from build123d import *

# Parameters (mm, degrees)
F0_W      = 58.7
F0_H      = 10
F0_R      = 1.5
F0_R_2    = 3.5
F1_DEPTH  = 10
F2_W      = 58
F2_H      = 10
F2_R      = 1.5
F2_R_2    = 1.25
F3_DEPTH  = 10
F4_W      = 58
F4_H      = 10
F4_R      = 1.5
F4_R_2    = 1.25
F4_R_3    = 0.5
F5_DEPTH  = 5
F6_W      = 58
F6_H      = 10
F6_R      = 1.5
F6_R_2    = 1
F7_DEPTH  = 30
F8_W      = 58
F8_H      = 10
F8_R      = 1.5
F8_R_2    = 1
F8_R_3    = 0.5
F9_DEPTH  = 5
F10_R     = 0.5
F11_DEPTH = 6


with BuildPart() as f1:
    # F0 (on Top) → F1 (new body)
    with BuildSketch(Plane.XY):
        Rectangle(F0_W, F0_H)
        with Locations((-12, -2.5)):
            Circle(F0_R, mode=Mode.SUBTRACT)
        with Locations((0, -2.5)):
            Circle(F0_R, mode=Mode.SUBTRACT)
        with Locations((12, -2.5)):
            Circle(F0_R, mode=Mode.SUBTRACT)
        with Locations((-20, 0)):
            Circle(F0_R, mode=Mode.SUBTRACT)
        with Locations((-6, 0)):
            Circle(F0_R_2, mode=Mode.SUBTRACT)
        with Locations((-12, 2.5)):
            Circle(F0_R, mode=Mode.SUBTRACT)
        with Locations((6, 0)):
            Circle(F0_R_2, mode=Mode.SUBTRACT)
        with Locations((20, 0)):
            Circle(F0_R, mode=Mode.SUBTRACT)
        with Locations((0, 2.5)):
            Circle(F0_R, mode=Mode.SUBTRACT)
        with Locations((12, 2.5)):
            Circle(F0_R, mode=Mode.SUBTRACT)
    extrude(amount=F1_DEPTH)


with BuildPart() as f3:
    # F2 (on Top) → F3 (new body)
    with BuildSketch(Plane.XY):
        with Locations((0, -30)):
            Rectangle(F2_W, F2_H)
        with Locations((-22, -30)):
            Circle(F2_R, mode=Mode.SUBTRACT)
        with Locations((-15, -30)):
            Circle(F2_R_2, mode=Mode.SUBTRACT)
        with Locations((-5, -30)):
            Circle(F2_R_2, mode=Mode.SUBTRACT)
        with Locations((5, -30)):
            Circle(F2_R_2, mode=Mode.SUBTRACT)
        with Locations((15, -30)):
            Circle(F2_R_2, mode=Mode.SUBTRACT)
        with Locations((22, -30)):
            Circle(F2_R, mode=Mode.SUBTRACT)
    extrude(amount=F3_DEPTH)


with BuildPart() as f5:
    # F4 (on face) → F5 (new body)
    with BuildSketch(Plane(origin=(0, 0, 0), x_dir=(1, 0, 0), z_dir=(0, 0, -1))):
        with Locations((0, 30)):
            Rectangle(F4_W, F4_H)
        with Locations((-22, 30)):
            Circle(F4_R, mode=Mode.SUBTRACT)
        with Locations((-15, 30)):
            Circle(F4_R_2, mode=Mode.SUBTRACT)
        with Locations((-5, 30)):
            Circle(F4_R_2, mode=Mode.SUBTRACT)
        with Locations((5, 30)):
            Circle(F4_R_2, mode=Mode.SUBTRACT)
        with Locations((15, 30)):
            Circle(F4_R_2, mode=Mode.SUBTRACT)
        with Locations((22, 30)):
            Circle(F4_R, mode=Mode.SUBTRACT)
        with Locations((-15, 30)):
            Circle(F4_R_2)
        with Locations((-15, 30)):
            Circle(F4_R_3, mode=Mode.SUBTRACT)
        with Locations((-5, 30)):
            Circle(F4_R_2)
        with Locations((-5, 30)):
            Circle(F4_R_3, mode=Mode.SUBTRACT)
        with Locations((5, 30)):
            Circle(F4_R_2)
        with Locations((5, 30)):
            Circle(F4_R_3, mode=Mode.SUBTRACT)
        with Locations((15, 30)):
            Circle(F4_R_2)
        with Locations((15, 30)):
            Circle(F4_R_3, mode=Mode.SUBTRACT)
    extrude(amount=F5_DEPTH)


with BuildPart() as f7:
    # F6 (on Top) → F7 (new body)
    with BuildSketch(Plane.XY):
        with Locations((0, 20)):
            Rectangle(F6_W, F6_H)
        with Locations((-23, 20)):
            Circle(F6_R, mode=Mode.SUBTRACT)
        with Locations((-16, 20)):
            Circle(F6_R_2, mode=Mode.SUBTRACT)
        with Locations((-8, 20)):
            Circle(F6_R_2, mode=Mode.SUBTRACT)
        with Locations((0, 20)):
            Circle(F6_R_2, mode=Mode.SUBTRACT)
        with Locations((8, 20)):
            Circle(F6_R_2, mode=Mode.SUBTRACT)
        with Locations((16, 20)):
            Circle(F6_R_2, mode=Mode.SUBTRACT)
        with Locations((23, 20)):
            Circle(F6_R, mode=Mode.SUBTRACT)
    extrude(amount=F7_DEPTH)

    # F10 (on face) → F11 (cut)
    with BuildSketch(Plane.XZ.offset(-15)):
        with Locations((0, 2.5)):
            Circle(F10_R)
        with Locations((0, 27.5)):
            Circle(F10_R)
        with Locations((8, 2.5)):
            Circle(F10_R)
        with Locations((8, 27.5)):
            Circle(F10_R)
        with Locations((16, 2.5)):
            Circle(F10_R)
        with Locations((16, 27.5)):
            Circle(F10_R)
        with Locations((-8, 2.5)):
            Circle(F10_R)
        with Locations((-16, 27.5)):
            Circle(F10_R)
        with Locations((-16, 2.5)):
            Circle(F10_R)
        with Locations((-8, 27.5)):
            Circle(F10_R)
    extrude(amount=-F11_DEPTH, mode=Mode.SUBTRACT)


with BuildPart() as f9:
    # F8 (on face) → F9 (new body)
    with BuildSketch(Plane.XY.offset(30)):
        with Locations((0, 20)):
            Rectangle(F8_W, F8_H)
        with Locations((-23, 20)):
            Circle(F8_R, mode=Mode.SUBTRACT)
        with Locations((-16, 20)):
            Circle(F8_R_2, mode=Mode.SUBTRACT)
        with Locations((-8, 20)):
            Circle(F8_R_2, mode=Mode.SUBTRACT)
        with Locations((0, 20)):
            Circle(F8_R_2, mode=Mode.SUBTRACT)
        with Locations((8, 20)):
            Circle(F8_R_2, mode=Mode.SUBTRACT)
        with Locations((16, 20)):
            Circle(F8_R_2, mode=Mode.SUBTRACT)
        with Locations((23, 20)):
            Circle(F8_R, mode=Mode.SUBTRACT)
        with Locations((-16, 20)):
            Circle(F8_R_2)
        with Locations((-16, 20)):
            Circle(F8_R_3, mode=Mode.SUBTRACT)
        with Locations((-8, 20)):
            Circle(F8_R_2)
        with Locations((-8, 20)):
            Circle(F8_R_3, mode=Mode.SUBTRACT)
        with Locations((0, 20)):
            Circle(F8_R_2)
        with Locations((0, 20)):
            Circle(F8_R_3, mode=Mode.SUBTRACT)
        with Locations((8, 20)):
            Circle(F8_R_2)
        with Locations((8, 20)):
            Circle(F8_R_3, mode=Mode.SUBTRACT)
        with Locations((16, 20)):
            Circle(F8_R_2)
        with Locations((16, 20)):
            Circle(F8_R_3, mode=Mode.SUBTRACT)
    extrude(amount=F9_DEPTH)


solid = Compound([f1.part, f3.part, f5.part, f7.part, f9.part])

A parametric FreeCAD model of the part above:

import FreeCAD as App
import Part
import Sketcher


def add_polygon(sketch, points):
    """Adds a closed chain of lines whose ends are joined by coincident constraints."""
    first, n = sketch.GeometryCount, len(points)
    for a, b in zip(points, points[1:] + points[:1]):
        sketch.addGeometry(Part.LineSegment(App.Vector(*a, 0), App.Vector(*b, 0)), False)
    for i in range(n):
        sketch.addConstraint(Sketcher.Constraint("Coincident", first + i, 2, first + (i + 1) % n, 1))

doc = App.newDocument("Part")
params = doc.addObject("Spreadsheet::Sheet", "Params")
for row, (alias, value) in enumerate([
    ("sketch1_diameter", "3 mm"),
    ("sketch1_diameter2", "7 mm"),
    ("sketch1_height", "10 mm"),
    ("sketch1_width", "58.7 mm"),
    ("pad1_length", "10 mm"),
    ("sketch2_diameter", "3 mm"),
    ("sketch2_diameter2", "2.5 mm"),
    ("sketch2_width", "58 mm"),
    ("sketch2_height", "10 mm"),
    ("pad2_length", "10 mm"),
    ("sketch3_diameter", "3 mm"),
    ("sketch3_diameter2", "1 mm"),
    ("sketch3_width", "58 mm"),
    ("sketch3_height", "10 mm"),
    ("pad3_length", "5 mm"),
    ("sketch4_diameter", "3 mm"),
    ("sketch4_diameter2", "2 mm"),
    ("sketch4_width", "58 mm"),
    ("sketch4_height", "10 mm"),
    ("pad4_length", "30 mm"),
    ("sketch5_diameter", "1 mm"),
    ("pocket1_length", "6 mm"),
    ("sketch6_diameter", "3 mm"),
    ("sketch6_diameter2", "1 mm"),
    ("sketch6_width", "58 mm"),
    ("sketch6_height", "10 mm"),
    ("pad5_length", "5 mm"),
], start=1):
    params.set(f"A{row}", alias)
    params.set(f"B{row}", "=" + value)
    params.setAlias(f"B{row}", alias)

body = doc.addObject("PartDesign::Body", "Body")

# Sketch on XY plane
sketch1 = doc.addObject("Sketcher::SketchObject", "Sketch")
body.addObject(sketch1)
sketch1.AttachmentSupport = (doc.XY_Plane, [""])
sketch1.MapMode = "FlatFace"
add_polygon(sketch1, [(-29.4, 5), (-29.4, -5), (29.4, -5), (29.4, 5)])  # lines 0-3
sketch1.addGeometry(Part.Circle(App.Vector(-12, -2.5, 0), App.Vector(0, 0, 1), 1.5), False)  # 4
sketch1.addGeometry(Part.Circle(App.Vector(0, -2.5, 0), App.Vector(0, 0, 1), 1.5), False)  # 5
sketch1.addGeometry(Part.Circle(App.Vector(12, -2.5, 0), App.Vector(0, 0, 1), 1.5), False)  # 6
sketch1.addGeometry(Part.Circle(App.Vector(-20, 0, 0), App.Vector(0, 0, 1), 1.5), False)  # 7
sketch1.addGeometry(Part.Circle(App.Vector(-6, 0, 0), App.Vector(0, 0, 1), 3.5), False)  # 8
sketch1.addGeometry(Part.Circle(App.Vector(-12, 2.5, 0), App.Vector(0, 0, 1), 1.5), False)  # 9
sketch1.addGeometry(Part.Circle(App.Vector(6, 0, 0), App.Vector(0, 0, 1), 3.5), False)  # 10
sketch1.addGeometry(Part.Circle(App.Vector(20, 0, 0), App.Vector(0, 0, 1), 1.5), False)  # 11
sketch1.addGeometry(Part.Circle(App.Vector(0, 2.5, 0), App.Vector(0, 0, 1), 1.5), False)  # 12
sketch1.addGeometry(Part.Circle(App.Vector(12, 2.5, 0), App.Vector(0, 0, 1), 1.5), False)  # 13
sketch1.addConstraint(Sketcher.Constraint("Vertical", 0))
sketch1.addConstraint(Sketcher.Constraint("Horizontal", 1))
sketch1.addConstraint(Sketcher.Constraint("Vertical", 2))
sketch1.addConstraint(Sketcher.Constraint("Horizontal", 3))
sketch1.addConstraint(Sketcher.Constraint("Equal", 4, 5))
sketch1.addConstraint(Sketcher.Constraint("Equal", 5, 6))
sketch1.addConstraint(Sketcher.Constraint("Equal", 6, 7))
sketch1.addConstraint(Sketcher.Constraint("Equal", 7, 9))
sketch1.addConstraint(Sketcher.Constraint("Equal", 8, 10))
sketch1.addConstraint(Sketcher.Constraint("Equal", 9, 11))
sketch1.addConstraint(Sketcher.Constraint("Equal", 11, 12))
sketch1.addConstraint(Sketcher.Constraint("Equal", 12, 13))
sketch1.addConstraint(Sketcher.Constraint("Symmetric", 6, 3, 9, 3, -1, 1))
sketch1.addConstraint(Sketcher.Constraint("Symmetric", 8, 3, 10, 3, -1, 1))
sketch1.addConstraint(Sketcher.Constraint("Symmetric", 7, 3, 11, 3, -1, 1))
sketch1.addConstraint(Sketcher.Constraint("Symmetric", 5, 3, 12, 3, -1, 1))
sketch1.addConstraint(Sketcher.Constraint("Symmetric", 4, 3, 13, 3, -1, 1))
sketch1.addConstraint(Sketcher.Constraint("Symmetric", 0, 2, 2, 2, -1, 1))
sketch1.addConstraint(Sketcher.Constraint("Symmetric", 4, 3, 6, 3, -2))
sketch1.addConstraint(Sketcher.Constraint("PointOnObject", 5, 3, -2))
sketch1.addConstraint(Sketcher.Constraint("PointOnObject", 7, 3, -1))
sketch1.addConstraint(Sketcher.Constraint("PointOnObject", 8, 3, -1))
sketch1.addConstraint(Sketcher.Constraint("Horizontal", 4, 3, 5, 3))
sketch1.addConstraint(Sketcher.Constraint("Diameter", 4, 3.0))
sketch1.addConstraint(Sketcher.Constraint("Diameter", 8, 7.0))
sketch1.addConstraint(Sketcher.Constraint("DistanceY", 0, 2, 0, 1, 10.0))
sketch1.addConstraint(Sketcher.Constraint("DistanceX", 1, 1, 1, 2, 58.7))
sketch1.addConstraint(Sketcher.Constraint("DistanceX", 4, 3, -1, 1, 12.0))
sketch1.addConstraint(Sketcher.Constraint("DistanceX", 7, 3, -1, 1, 20.0))
sketch1.addConstraint(Sketcher.Constraint("DistanceX", 8, 3, -1, 1, 6.0))
sketch1.addConstraint(Sketcher.Constraint("DistanceY", 4, 3, 9, 3, 5.0))
sketch1.setExpression("Constraints[27]", "Params.sketch1_diameter")
sketch1.setExpression("Constraints[28]", "Params.sketch1_diameter2")
sketch1.setExpression("Constraints[29]", "Params.sketch1_height")
sketch1.setExpression("Constraints[30]", "Params.sketch1_width")
pad1 = doc.addObject("PartDesign::Pad", "Pad")
body.addObject(pad1)
pad1.Profile = sketch1
pad1.setExpression("Length", "Params.pad1_length")
body2 = doc.addObject("PartDesign::Body", "Body001")

# Sketch on XY plane
sketch2 = doc.addObject("Sketcher::SketchObject", "Sketch001")
body2.addObject(sketch2)
sketch2.AttachmentSupport = (doc.getObject("XY_Plane001"), [""])
sketch2.MapMode = "FlatFace"
add_polygon(sketch2, [(-29, -25), (-29, -35), (29, -35), (29, -25)])  # lines 0-3
sketch2.addGeometry(Part.Circle(App.Vector(-22, -30, 0), App.Vector(0, 0, 1), 1.5), False)  # 4
sketch2.addGeometry(Part.Circle(App.Vector(-15, -30, 0), App.Vector(0, 0, 1), 1.2), False)  # 5
sketch2.addGeometry(Part.Circle(App.Vector(-5, -30, 0), App.Vector(0, 0, 1), 1.2), False)  # 6
sketch2.addGeometry(Part.Circle(App.Vector(5, -30, 0), App.Vector(0, 0, 1), 1.2), False)  # 7
sketch2.addGeometry(Part.Circle(App.Vector(15, -30, 0), App.Vector(0, 0, 1), 1.2), False)  # 8
sketch2.addGeometry(Part.Circle(App.Vector(22, -30, 0), App.Vector(0, 0, 1), 1.5), False)  # 9
sketch2.addConstraint(Sketcher.Constraint("Vertical", 0))
sketch2.addConstraint(Sketcher.Constraint("Horizontal", 1))
sketch2.addConstraint(Sketcher.Constraint("Vertical", 2))
sketch2.addConstraint(Sketcher.Constraint("Horizontal", 3))
sketch2.addConstraint(Sketcher.Constraint("Equal", 5, 6))
sketch2.addConstraint(Sketcher.Constraint("Equal", 6, 7))
sketch2.addConstraint(Sketcher.Constraint("Equal", 7, 8))
sketch2.addConstraint(Sketcher.Constraint("Equal", 4, 9))
sketch2.addConstraint(Sketcher.Constraint("Symmetric", 6, 3, 7, 3, -2))
sketch2.addConstraint(Sketcher.Constraint("Symmetric", 5, 3, 8, 3, -2))
sketch2.addConstraint(Sketcher.Constraint("Symmetric", 4, 3, 9, 3, -2))
sketch2.addConstraint(Sketcher.Constraint("Horizontal", 4, 3, 5, 3))
sketch2.addConstraint(Sketcher.Constraint("Horizontal", 5, 3, 6, 3))
sketch2.addConstraint(Sketcher.Constraint("Diameter", 4, 3.0))
sketch2.addConstraint(Sketcher.Constraint("Diameter", 5, 2.5))
sketch2.addConstraint(Sketcher.Constraint("DistanceX", 1, 1, 1, 2, 58.0))
sketch2.addConstraint(Sketcher.Constraint("DistanceY", 0, 2, 0, 1, 10.0))
sketch2.addConstraint(Sketcher.Constraint("DistanceX", 4, 3, -1, 1, 22.0))
sketch2.addConstraint(Sketcher.Constraint("DistanceY", 4, 3, -1, 1, 30.0))
sketch2.addConstraint(Sketcher.Constraint("DistanceX", 5, 3, -1, 1, 15.0))
sketch2.addConstraint(Sketcher.Constraint("DistanceX", 6, 3, -1, 1, 5.0))
sketch2.addConstraint(Sketcher.Constraint("DistanceX", 0, 2, -1, 1, 29.0))
sketch2.addConstraint(Sketcher.Constraint("DistanceY", 0, 2, -1, 1, 35.0))
sketch2.setExpression("Constraints[17]", "Params.sketch2_diameter")
sketch2.setExpression("Constraints[18]", "Params.sketch2_diameter2")
sketch2.setExpression("Constraints[19]", "Params.sketch2_width")
sketch2.setExpression("Constraints[20]", "Params.sketch2_height")
pad2 = doc.addObject("PartDesign::Pad", "Pad001")
body2.addObject(pad2)
pad2.Profile = sketch2
pad2.setExpression("Length", "Params.pad2_length")
body3 = doc.addObject("PartDesign::Body", "Body002")

# Sketch on XY plane
sketch3 = doc.addObject("Sketcher::SketchObject", "Sketch002")
body3.addObject(sketch3)
sketch3.AttachmentSupport = (doc.getObject("XY_Plane002"), [""])
sketch3.MapMode = "FlatFace"
add_polygon(sketch3, [(-29, -35), (-29, -25), (29, -25), (29, -35)])  # lines 0-3
sketch3.addGeometry(Part.Circle(App.Vector(-22, -30, 0), App.Vector(0, 0, 1), 1.5), False)  # 4
sketch3.addGeometry(Part.Circle(App.Vector(-15, -30, 0), App.Vector(0, 0, 1), 0.5), False)  # 5
sketch3.addGeometry(Part.Circle(App.Vector(-5, -30, 0), App.Vector(0, 0, 1), 0.5), False)  # 6
sketch3.addGeometry(Part.Circle(App.Vector(5, -30, 0), App.Vector(0, 0, 1), 0.5), False)  # 7
sketch3.addGeometry(Part.Circle(App.Vector(15, -30, 0), App.Vector(0, 0, 1), 0.5), False)  # 8
sketch3.addGeometry(Part.Circle(App.Vector(22, -30, 0), App.Vector(0, 0, 1), 1.5), False)  # 9
sketch3.addConstraint(Sketcher.Constraint("Vertical", 0))
sketch3.addConstraint(Sketcher.Constraint("Horizontal", 1))
sketch3.addConstraint(Sketcher.Constraint("Vertical", 2))
sketch3.addConstraint(Sketcher.Constraint("Horizontal", 3))
sketch3.addConstraint(Sketcher.Constraint("Equal", 5, 6))
sketch3.addConstraint(Sketcher.Constraint("Equal", 6, 7))
sketch3.addConstraint(Sketcher.Constraint("Equal", 7, 8))
sketch3.addConstraint(Sketcher.Constraint("Equal", 4, 9))
sketch3.addConstraint(Sketcher.Constraint("Symmetric", 6, 3, 7, 3, -2))
sketch3.addConstraint(Sketcher.Constraint("Symmetric", 5, 3, 8, 3, -2))
sketch3.addConstraint(Sketcher.Constraint("Symmetric", 4, 3, 9, 3, -2))
sketch3.addConstraint(Sketcher.Constraint("Horizontal", 4, 3, 5, 3))
sketch3.addConstraint(Sketcher.Constraint("Horizontal", 5, 3, 6, 3))
sketch3.addConstraint(Sketcher.Constraint("Diameter", 4, 3.0))
sketch3.addConstraint(Sketcher.Constraint("Diameter", 5, 1.0))
sketch3.addConstraint(Sketcher.Constraint("DistanceX", 1, 1, 1, 2, 58.0))
sketch3.addConstraint(Sketcher.Constraint("DistanceY", 0, 1, 0, 2, 10.0))
sketch3.addConstraint(Sketcher.Constraint("DistanceX", 4, 3, -1, 1, 22.0))
sketch3.addConstraint(Sketcher.Constraint("DistanceY", 4, 3, -1, 1, 30.0))
sketch3.addConstraint(Sketcher.Constraint("DistanceX", 5, 3, -1, 1, 15.0))
sketch3.addConstraint(Sketcher.Constraint("DistanceX", 6, 3, -1, 1, 5.0))
sketch3.addConstraint(Sketcher.Constraint("DistanceX", 0, 2, -1, 1, 29.0))
sketch3.addConstraint(Sketcher.Constraint("DistanceY", 0, 2, -1, 1, 25.0))
sketch3.setExpression("Constraints[17]", "Params.sketch3_diameter")
sketch3.setExpression("Constraints[18]", "Params.sketch3_diameter2")
sketch3.setExpression("Constraints[19]", "Params.sketch3_width")
sketch3.setExpression("Constraints[20]", "Params.sketch3_height")
pad3 = doc.addObject("PartDesign::Pad", "Pad002")
body3.addObject(pad3)
pad3.Profile = sketch3
pad3.setExpression("Length", "Params.pad3_length")
pad3.Reversed = True
body4 = doc.addObject("PartDesign::Body", "Body003")

# Sketch on XY plane
sketch4 = doc.addObject("Sketcher::SketchObject", "Sketch003")
body4.addObject(sketch4)
sketch4.AttachmentSupport = (doc.getObject("XY_Plane003"), [""])
sketch4.MapMode = "FlatFace"
add_polygon(sketch4, [(-29, 25), (-29, 15), (29, 15), (29, 25)])  # lines 0-3
sketch4.addGeometry(Part.Circle(App.Vector(-23, 20, 0), App.Vector(0, 0, 1), 1.5), False)  # 4
sketch4.addGeometry(Part.Circle(App.Vector(-16, 20, 0), App.Vector(0, 0, 1), 1), False)  # 5
sketch4.addGeometry(Part.Circle(App.Vector(-8, 20, 0), App.Vector(0, 0, 1), 1), False)  # 6
sketch4.addGeometry(Part.Circle(App.Vector(0, 20, 0), App.Vector(0, 0, 1), 1), False)  # 7
sketch4.addGeometry(Part.Circle(App.Vector(8, 20, 0), App.Vector(0, 0, 1), 1), False)  # 8
sketch4.addGeometry(Part.Circle(App.Vector(16, 20, 0), App.Vector(0, 0, 1), 1), False)  # 9
sketch4.addGeometry(Part.Circle(App.Vector(23, 20, 0), App.Vector(0, 0, 1), 1.5), False)  # 10
sketch4.addConstraint(Sketcher.Constraint("Vertical", 0))
sketch4.addConstraint(Sketcher.Constraint("Horizontal", 1))
sketch4.addConstraint(Sketcher.Constraint("Vertical", 2))
sketch4.addConstraint(Sketcher.Constraint("Horizontal", 3))
sketch4.addConstraint(Sketcher.Constraint("Equal", 5, 6))
sketch4.addConstraint(Sketcher.Constraint("Equal", 6, 7))
sketch4.addConstraint(Sketcher.Constraint("Equal", 7, 8))
sketch4.addConstraint(Sketcher.Constraint("Equal", 8, 9))
sketch4.addConstraint(Sketcher.Constraint("Equal", 4, 10))
sketch4.addConstraint(Sketcher.Constraint("Symmetric", 6, 3, 8, 3, -2))
sketch4.addConstraint(Sketcher.Constraint("Symmetric", 5, 3, 9, 3, -2))
sketch4.addConstraint(Sketcher.Constraint("Symmetric", 4, 3, 10, 3, -2))
sketch4.addConstraint(Sketcher.Constraint("PointOnObject", 7, 3, -2))
sketch4.addConstraint(Sketcher.Constraint("Horizontal", 4, 3, 5, 3))
sketch4.addConstraint(Sketcher.Constraint("Horizontal", 5, 3, 6, 3))
sketch4.addConstraint(Sketcher.Constraint("Horizontal", 6, 3, 7, 3))
sketch4.addConstraint(Sketcher.Constraint("Diameter", 4, 3.0))
sketch4.addConstraint(Sketcher.Constraint("Diameter", 5, 2.0))
sketch4.addConstraint(Sketcher.Constraint("DistanceX", 1, 1, 1, 2, 58.0))
sketch4.addConstraint(Sketcher.Constraint("DistanceY", 0, 2, 0, 1, 10.0))
sketch4.addConstraint(Sketcher.Constraint("DistanceX", 4, 3, -1, 1, 23.0))
sketch4.addConstraint(Sketcher.Constraint("DistanceY", -1, 1, 4, 3, 20.0))
sketch4.addConstraint(Sketcher.Constraint("DistanceX", 5, 3, -1, 1, 16.0))
sketch4.addConstraint(Sketcher.Constraint("DistanceX", 6, 3, -1, 1, 8.0))
sketch4.addConstraint(Sketcher.Constraint("DistanceX", 0, 2, -1, 1, 29.0))
sketch4.addConstraint(Sketcher.Constraint("DistanceY", -1, 1, 0, 2, 15.0))
sketch4.setExpression("Constraints[20]", "Params.sketch4_diameter")
sketch4.setExpression("Constraints[21]", "Params.sketch4_diameter2")
sketch4.setExpression("Constraints[22]", "Params.sketch4_width")
sketch4.setExpression("Constraints[23]", "Params.sketch4_height")
pad4 = doc.addObject("PartDesign::Pad", "Pad003")
body4.addObject(pad4)
pad4.Profile = sketch4
pad4.setExpression("Length", "Params.pad4_length")

# Sketch on XZ plane
sketch5 = doc.addObject("Sketcher::SketchObject", "Sketch004")
body4.addObject(sketch5)
sketch5.AttachmentSupport = (doc.getObject("XZ_Plane003"), [""])
sketch5.MapMode = "FlatFace"
sketch5.AttachmentOffset = App.Placement(App.Vector(0, 0, -15), App.Rotation())
sketch5.addGeometry(Part.Circle(App.Vector(0, 2.5, 0), App.Vector(0, 0, 1), 0.5), False)
sketch5.addGeometry(Part.Circle(App.Vector(0, 27.5, 0), App.Vector(0, 0, 1), 0.5), False)
sketch5.addGeometry(Part.Circle(App.Vector(8, 2.5, 0), App.Vector(0, 0, 1), 0.5), False)
sketch5.addGeometry(Part.Circle(App.Vector(8, 27.5, 0), App.Vector(0, 0, 1), 0.5), False)
sketch5.addGeometry(Part.Circle(App.Vector(16, 2.5, 0), App.Vector(0, 0, 1), 0.5), False)
sketch5.addGeometry(Part.Circle(App.Vector(16, 27.5, 0), App.Vector(0, 0, 1), 0.5), False)
sketch5.addGeometry(Part.Circle(App.Vector(-8, 2.5, 0), App.Vector(0, 0, 1), 0.5), False)
sketch5.addGeometry(Part.Circle(App.Vector(-16, 27.5, 0), App.Vector(0, 0, 1), 0.5), False)
sketch5.addGeometry(Part.Circle(App.Vector(-16, 2.5, 0), App.Vector(0, 0, 1), 0.5), False)
sketch5.addGeometry(Part.Circle(App.Vector(-8, 27.5, 0), App.Vector(0, 0, 1), 0.5), False)
sketch5.addConstraint(Sketcher.Constraint("Equal", 0, 1))
sketch5.addConstraint(Sketcher.Constraint("Equal", 1, 2))
sketch5.addConstraint(Sketcher.Constraint("Equal", 2, 3))
sketch5.addConstraint(Sketcher.Constraint("Equal", 3, 4))
sketch5.addConstraint(Sketcher.Constraint("Equal", 4, 5))
sketch5.addConstraint(Sketcher.Constraint("Equal", 5, 6))
sketch5.addConstraint(Sketcher.Constraint("Equal", 6, 7))
sketch5.addConstraint(Sketcher.Constraint("Equal", 7, 8))
sketch5.addConstraint(Sketcher.Constraint("Equal", 8, 9))
sketch5.addConstraint(Sketcher.Constraint("Symmetric", 2, 3, 6, 3, -2))
sketch5.addConstraint(Sketcher.Constraint("Symmetric", 5, 3, 7, 3, -2))
sketch5.addConstraint(Sketcher.Constraint("Symmetric", 4, 3, 8, 3, -2))
sketch5.addConstraint(Sketcher.Constraint("Symmetric", 3, 3, 9, 3, -2))
sketch5.addConstraint(Sketcher.Constraint("PointOnObject", 0, 3, -2))
sketch5.addConstraint(Sketcher.Constraint("PointOnObject", 1, 3, -2))
sketch5.addConstraint(Sketcher.Constraint("Horizontal", 0, 3, 2, 3))
sketch5.addConstraint(Sketcher.Constraint("Horizontal", 1, 3, 3, 3))
sketch5.addConstraint(Sketcher.Constraint("Horizontal", 2, 3, 4, 3))
sketch5.addConstraint(Sketcher.Constraint("Horizontal", 3, 3, 5, 3))
sketch5.addConstraint(Sketcher.Constraint("Vertical", 2, 3, 3, 3))
sketch5.addConstraint(Sketcher.Constraint("Vertical", 4, 3, 5, 3))
sketch5.addConstraint(Sketcher.Constraint("Diameter", 0, 1.0))
sketch5.addConstraint(Sketcher.Constraint("DistanceX", -1, 1, 2, 3, 8.0))
sketch5.addConstraint(Sketcher.Constraint("DistanceX", -1, 1, 4, 3, 16.0))
sketch5.addConstraint(Sketcher.Constraint("DistanceY", 0, 3, 1, 3, 25.0))
sketch5.addConstraint(Sketcher.Constraint("DistanceY", -1, 1, 0, 3, 2.5))
sketch5.setExpression("Constraints[21]", "Params.sketch5_diameter")
pocket1 = doc.addObject("PartDesign::Pocket", "Pocket")
body4.addObject(pocket1)
pocket1.Profile = sketch5
pocket1.setExpression("Length", "Params.pocket1_length")
body5 = doc.addObject("PartDesign::Body", "Body004")

# Sketch on XY plane
sketch6 = doc.addObject("Sketcher::SketchObject", "Sketch005")
body5.addObject(sketch6)
sketch6.AttachmentSupport = (doc.getObject("XY_Plane004"), [""])
sketch6.MapMode = "FlatFace"
sketch6.AttachmentOffset = App.Placement(App.Vector(0, 0, 30), App.Rotation())
add_polygon(sketch6, [(-29, 25), (-29, 15), (29, 15), (29, 25)])  # lines 0-3
sketch6.addGeometry(Part.Circle(App.Vector(-23, 20, 0), App.Vector(0, 0, 1), 1.5), False)  # 4
sketch6.addGeometry(Part.Circle(App.Vector(-16, 20, 0), App.Vector(0, 0, 1), 0.5), False)  # 5
sketch6.addGeometry(Part.Circle(App.Vector(-8, 20, 0), App.Vector(0, 0, 1), 0.5), False)  # 6
sketch6.addGeometry(Part.Circle(App.Vector(0, 20, 0), App.Vector(0, 0, 1), 0.5), False)  # 7
sketch6.addGeometry(Part.Circle(App.Vector(8, 20, 0), App.Vector(0, 0, 1), 0.5), False)  # 8
sketch6.addGeometry(Part.Circle(App.Vector(16, 20, 0), App.Vector(0, 0, 1), 0.5), False)  # 9
sketch6.addGeometry(Part.Circle(App.Vector(23, 20, 0), App.Vector(0, 0, 1), 1.5), False)  # 10
sketch6.addConstraint(Sketcher.Constraint("Vertical", 0))
sketch6.addConstraint(Sketcher.Constraint("Horizontal", 1))
sketch6.addConstraint(Sketcher.Constraint("Vertical", 2))
sketch6.addConstraint(Sketcher.Constraint("Horizontal", 3))
sketch6.addConstraint(Sketcher.Constraint("Equal", 5, 6))
sketch6.addConstraint(Sketcher.Constraint("Equal", 6, 7))
sketch6.addConstraint(Sketcher.Constraint("Equal", 7, 8))
sketch6.addConstraint(Sketcher.Constraint("Equal", 8, 9))
sketch6.addConstraint(Sketcher.Constraint("Equal", 4, 10))
sketch6.addConstraint(Sketcher.Constraint("Symmetric", 6, 3, 8, 3, -2))
sketch6.addConstraint(Sketcher.Constraint("Symmetric", 5, 3, 9, 3, -2))
sketch6.addConstraint(Sketcher.Constraint("Symmetric", 4, 3, 10, 3, -2))
sketch6.addConstraint(Sketcher.Constraint("PointOnObject", 7, 3, -2))
sketch6.addConstraint(Sketcher.Constraint("Horizontal", 4, 3, 5, 3))
sketch6.addConstraint(Sketcher.Constraint("Horizontal", 5, 3, 6, 3))
sketch6.addConstraint(Sketcher.Constraint("Horizontal", 6, 3, 7, 3))
sketch6.addConstraint(Sketcher.Constraint("Diameter", 4, 3.0))
sketch6.addConstraint(Sketcher.Constraint("Diameter", 5, 1.0))
sketch6.addConstraint(Sketcher.Constraint("DistanceX", 1, 1, 1, 2, 58.0))
sketch6.addConstraint(Sketcher.Constraint("DistanceY", 0, 2, 0, 1, 10.0))
sketch6.addConstraint(Sketcher.Constraint("DistanceX", 4, 3, -1, 1, 23.0))
sketch6.addConstraint(Sketcher.Constraint("DistanceY", -1, 1, 4, 3, 20.0))
sketch6.addConstraint(Sketcher.Constraint("DistanceX", 5, 3, -1, 1, 16.0))
sketch6.addConstraint(Sketcher.Constraint("DistanceX", 6, 3, -1, 1, 8.0))
sketch6.addConstraint(Sketcher.Constraint("DistanceX", 0, 2, -1, 1, 29.0))
sketch6.addConstraint(Sketcher.Constraint("DistanceY", -1, 1, 0, 2, 15.0))
sketch6.setExpression("Constraints[20]", "Params.sketch6_diameter")
sketch6.setExpression("Constraints[21]", "Params.sketch6_diameter2")
sketch6.setExpression("Constraints[22]", "Params.sketch6_width")
sketch6.setExpression("Constraints[23]", "Params.sketch6_height")
pad5 = doc.addObject("PartDesign::Pad", "Pad004")
body5.addObject(pad5)
pad5.Profile = sketch6
pad5.setExpression("Length", "Params.pad5_length")

doc.recompute()
